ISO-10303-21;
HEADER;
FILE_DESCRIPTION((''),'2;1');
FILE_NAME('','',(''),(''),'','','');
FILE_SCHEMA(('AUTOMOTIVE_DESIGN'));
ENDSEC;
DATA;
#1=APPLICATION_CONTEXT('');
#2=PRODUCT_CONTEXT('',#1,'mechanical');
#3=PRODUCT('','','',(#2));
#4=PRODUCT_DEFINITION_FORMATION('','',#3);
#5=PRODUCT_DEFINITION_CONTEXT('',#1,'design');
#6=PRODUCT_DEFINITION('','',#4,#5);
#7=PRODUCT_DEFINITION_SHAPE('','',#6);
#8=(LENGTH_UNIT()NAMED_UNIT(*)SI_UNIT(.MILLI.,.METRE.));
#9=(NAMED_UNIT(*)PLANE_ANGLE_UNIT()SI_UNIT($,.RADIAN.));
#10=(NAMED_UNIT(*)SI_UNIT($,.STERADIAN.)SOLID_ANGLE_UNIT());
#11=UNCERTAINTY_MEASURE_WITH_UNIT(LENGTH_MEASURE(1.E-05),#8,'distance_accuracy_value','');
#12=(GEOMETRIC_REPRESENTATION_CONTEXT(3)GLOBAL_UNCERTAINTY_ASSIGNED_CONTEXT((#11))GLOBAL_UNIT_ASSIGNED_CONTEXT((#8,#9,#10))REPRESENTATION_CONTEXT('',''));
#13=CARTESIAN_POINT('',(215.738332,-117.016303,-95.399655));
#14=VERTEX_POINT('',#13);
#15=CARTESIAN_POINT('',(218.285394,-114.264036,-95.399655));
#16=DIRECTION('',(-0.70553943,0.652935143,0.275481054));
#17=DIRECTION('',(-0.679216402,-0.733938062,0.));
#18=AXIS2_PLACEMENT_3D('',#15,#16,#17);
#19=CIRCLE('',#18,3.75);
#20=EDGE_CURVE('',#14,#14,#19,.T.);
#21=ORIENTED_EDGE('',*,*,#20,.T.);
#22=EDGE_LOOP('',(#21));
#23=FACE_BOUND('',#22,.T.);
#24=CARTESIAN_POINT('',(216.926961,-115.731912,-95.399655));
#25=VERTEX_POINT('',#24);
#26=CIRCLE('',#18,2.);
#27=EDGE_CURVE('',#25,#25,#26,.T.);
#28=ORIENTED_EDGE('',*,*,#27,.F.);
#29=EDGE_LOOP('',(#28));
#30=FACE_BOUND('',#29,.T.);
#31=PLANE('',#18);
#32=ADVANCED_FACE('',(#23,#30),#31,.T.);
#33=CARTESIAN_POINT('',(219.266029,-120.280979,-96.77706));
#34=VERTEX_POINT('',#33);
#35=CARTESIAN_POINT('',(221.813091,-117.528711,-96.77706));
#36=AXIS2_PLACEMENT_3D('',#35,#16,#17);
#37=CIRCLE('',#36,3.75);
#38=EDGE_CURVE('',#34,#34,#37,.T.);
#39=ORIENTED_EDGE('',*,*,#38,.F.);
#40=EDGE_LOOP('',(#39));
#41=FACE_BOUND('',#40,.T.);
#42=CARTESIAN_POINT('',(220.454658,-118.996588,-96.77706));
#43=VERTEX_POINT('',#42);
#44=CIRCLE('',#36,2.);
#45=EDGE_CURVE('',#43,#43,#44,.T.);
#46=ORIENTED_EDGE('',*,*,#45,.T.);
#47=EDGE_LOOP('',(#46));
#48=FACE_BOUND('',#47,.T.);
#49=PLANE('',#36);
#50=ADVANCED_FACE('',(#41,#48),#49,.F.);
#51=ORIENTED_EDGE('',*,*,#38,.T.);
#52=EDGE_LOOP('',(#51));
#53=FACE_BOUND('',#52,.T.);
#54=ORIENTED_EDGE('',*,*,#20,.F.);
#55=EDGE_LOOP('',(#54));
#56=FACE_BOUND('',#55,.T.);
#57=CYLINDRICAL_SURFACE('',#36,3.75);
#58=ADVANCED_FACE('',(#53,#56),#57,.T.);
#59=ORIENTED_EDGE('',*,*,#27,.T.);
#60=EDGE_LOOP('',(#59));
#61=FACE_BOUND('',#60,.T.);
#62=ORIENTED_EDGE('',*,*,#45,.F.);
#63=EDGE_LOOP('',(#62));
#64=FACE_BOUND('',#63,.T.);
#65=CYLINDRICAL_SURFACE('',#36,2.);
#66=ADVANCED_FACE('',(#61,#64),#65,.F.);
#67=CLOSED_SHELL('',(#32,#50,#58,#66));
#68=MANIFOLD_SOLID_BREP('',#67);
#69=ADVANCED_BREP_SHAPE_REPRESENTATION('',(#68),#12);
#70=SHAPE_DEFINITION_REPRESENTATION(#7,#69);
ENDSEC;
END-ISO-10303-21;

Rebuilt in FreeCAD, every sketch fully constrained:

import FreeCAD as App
import Part
import Sketcher

V = App.Vector
Q = App.Units.Quantity

doc = App.newDocument("Part")
body = doc.addObject("PartDesign::Body", "Body")

# Sketch on an angled plane
sketch1 = body.newObject("Sketcher::SketchObject", "Sketch")
sketch1.Placement = App.Placement(V(179.839711, -166.431049, -70.219227), App.Rotation(V(0.609726945, 0.361174701, 0.70553943), V(0.361174701, 0.665754109, -0.652935143), V(-0.70553943, 0.652935143, 0.275481054), "ZXY"))
sketch1.addGeometry(Part.Circle(V(24.516989, 65.057198, 0), V(0, 0, 1), 3.75), False)
sketch1.addGeometry(Part.Circle(V(24.516989, 65.057198, 0), V(0, 0, 1), 2), False)
sketch1.addConstraint(Sketcher.Constraint("Coincident", 1, 3, 0, 3))
sketch1.addConstraint(Sketcher.Constraint("Diameter", 1, Q("4 mm")))
sketch1.addConstraint(Sketcher.Constraint("Diameter", 0, Q("7.5 mm")))
sketch1.addConstraint(Sketcher.Constraint("DistanceX", -1, 1, 0, 3, Q("24.516989 mm")))
sketch1.addConstraint(Sketcher.Constraint("DistanceY", -1, 1, 0, 3, Q("65.057198 mm")))
pad1 = body.newObject("PartDesign::Pad", "Pad")
pad1.Profile = sketch1
pad1.Length = 5
pad1.Reversed = True

doc.recompute()
